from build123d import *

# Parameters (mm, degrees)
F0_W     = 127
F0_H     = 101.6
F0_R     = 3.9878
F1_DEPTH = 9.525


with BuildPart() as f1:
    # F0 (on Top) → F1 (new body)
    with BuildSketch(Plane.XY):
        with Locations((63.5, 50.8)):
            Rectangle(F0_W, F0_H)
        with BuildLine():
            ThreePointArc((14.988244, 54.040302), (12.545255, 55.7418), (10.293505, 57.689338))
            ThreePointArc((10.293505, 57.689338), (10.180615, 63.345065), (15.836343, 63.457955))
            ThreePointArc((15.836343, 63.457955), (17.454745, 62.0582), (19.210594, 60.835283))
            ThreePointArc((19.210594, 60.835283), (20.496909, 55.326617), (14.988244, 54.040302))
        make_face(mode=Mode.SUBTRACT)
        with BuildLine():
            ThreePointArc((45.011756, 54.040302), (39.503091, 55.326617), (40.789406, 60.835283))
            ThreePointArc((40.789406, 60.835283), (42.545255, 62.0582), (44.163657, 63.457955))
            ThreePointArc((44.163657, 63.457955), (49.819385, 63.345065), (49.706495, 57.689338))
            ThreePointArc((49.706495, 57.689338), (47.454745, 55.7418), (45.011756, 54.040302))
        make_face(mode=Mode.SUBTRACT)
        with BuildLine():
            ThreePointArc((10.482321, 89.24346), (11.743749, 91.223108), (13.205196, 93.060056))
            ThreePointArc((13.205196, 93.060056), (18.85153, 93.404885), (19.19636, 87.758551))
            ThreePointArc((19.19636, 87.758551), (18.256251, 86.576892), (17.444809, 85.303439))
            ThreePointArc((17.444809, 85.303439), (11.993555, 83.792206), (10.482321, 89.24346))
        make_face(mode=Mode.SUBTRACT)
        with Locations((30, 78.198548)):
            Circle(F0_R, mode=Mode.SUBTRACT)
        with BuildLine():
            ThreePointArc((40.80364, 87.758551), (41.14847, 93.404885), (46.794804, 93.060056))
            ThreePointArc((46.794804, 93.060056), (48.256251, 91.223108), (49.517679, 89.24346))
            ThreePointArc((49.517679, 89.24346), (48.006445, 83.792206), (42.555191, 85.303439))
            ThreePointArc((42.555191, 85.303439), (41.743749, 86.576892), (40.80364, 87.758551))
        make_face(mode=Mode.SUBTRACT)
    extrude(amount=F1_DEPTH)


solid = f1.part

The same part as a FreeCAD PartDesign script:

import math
import FreeCAD as App
import Part
import Sketcher
Q = App.Units.Quantity

doc = App.newDocument("Part")
body = doc.addObject("PartDesign::Body", "Body")

sketch1 = doc.addObject("Sketcher::SketchObject", "Sketch")
body.addObject(sketch1)
sketch1.AttachmentSupport = (doc.XY_Plane, [""])
sketch1.MapMode = "FlatFace"
sketch1.addGeometry([
    Part.LineSegment(App.Vector(0, 101.6, 0), App.Vector(0, 0, 0)),
    Part.LineSegment(App.Vector(0, 0, 0), App.Vector(127, 0, 0)),
    Part.LineSegment(App.Vector(127, 0, 0), App.Vector(127, 101.6, 0)),
    Part.LineSegment(App.Vector(127, 101.6, 0), App.Vector(0, 101.6, 0)),
    Part.ArcOfCircle(Part.Circle(App.Vector(17.1, 57.4, 0), App.Vector(0, 0, 1), 4), math.radians(-122), math.radians(58)),
    Part.ArcOfCircle(Part.Circle(App.Vector(30, 78.2, 0), App.Vector(0, 0, 1), 28.4), math.radians(-133.86), math.radians(-121.86)),
    Part.ArcOfCircle(Part.Circle(App.Vector(13.1, 60.6, 0), App.Vector(0, 0, 1), 4), math.radians(46), math.radians(226)),
    Part.ArcOfCircle(Part.Circle(App.Vector(30, 78.2, 0), App.Vector(0, 0, 1), 20.4), math.radians(-133.86), math.radians(-121.86)),
    Part.ArcOfCircle(Part.Circle(App.Vector(30, 78.2, 0), App.Vector(0, 0, 1), 28.4), math.radians(-58.14), math.radians(-46.14)),
    Part.ArcOfCircle(Part.Circle(App.Vector(42.9, 57.4, 0), App.Vector(0, 0, 1), 4), math.radians(122), math.radians(302)),
    Part.ArcOfCircle(Part.Circle(App.Vector(30, 78.2, 0), App.Vector(0, 0, 1), 20.4), math.radians(-58.14), math.radians(-46.14)),
    Part.ArcOfCircle(Part.Circle(App.Vector(46.9, 60.6, 0), App.Vector(0, 0, 1), 4), math.radians(-46), math.radians(134)),
    Part.ArcOfCircle(Part.Circle(App.Vector(14, 87.3, 0), App.Vector(0, 0, 1), 4), math.radians(150), math.radians(330)),
    Part.ArcOfCircle(Part.Circle(App.Vector(30, 78.2, 0), App.Vector(0, 0, 1), 22.4), math.radians(138.49), math.radians(150.49)),
    Part.ArcOfCircle(Part.Circle(App.Vector(16.2, 90.4, 0), App.Vector(0, 0, 1), 4), math.radians(-42), math.radians(138)),
    Part.ArcOfCircle(Part.Circle(App.Vector(30, 78.2, 0), App.Vector(0, 0, 1), 14.4), math.radians(138.49), math.radians(150.49)),
    Part.Circle(App.Vector(30, 78.2, 0), App.Vector(0, 0, 1), 4),
    Part.ArcOfCircle(Part.Circle(App.Vector(30, 78.2, 0), App.Vector(0, 0, 1), 14.4), math.radians(29.51), math.radians(41.51)),
    Part.ArcOfCircle(Part.Circle(App.Vector(43.8, 90.4, 0), App.Vector(0, 0, 1), 4), math.radians(42), math.radians(222)),
    Part.ArcOfCircle(Part.Circle(App.Vector(30, 78.2, 0), App.Vector(0, 0, 1), 22.4), math.radians(29.51), math.radians(41.51)),
    Part.ArcOfCircle(Part.Circle(App.Vector(46, 87.3, 0), App.Vector(0, 0, 1), 4), math.radians(-150), math.radians(30)),
], False)
sketch1.addConstraint([
    Sketcher.Constraint("Coincident", 0, 2, 1, 1),
    Sketcher.Constraint("Coincident", 1, 2, 2, 1),
    Sketcher.Constraint("Coincident", 2, 2, 3, 1),
    Sketcher.Constraint("Coincident", 3, 2, 0, 1),
    Sketcher.Constraint("Tangent", 4, 1, 5, 2),
    Sketcher.Constraint("Tangent", 5, 1, 6, 2),
    Sketcher.Constraint("Tangent", 6, 1, 7, 1),
    Sketcher.Constraint("Tangent", 7, 2, 4, 2),
    Sketcher.Constraint("Tangent", 8, 1, 9, 2),
    Sketcher.Constraint("Tangent", 9, 1, 10, 1),
    Sketcher.Constraint("Tangent", 10, 2, 11, 2),
    Sketcher.Constraint("Tangent", 11, 1, 8, 2),
    Sketcher.Constraint("Tangent", 12, 1, 13, 2),
    Sketcher.Constraint("Tangent", 13, 1, 14, 2),
    Sketcher.Constraint("Tangent", 14, 1, 15, 1),
    Sketcher.Constraint("Tangent", 15, 2, 12, 2),
    Sketcher.Constraint("Tangent", 17, 2, 18, 2),
    Sketcher.Constraint("Tangent", 18, 1, 19, 2),
    Sketcher.Constraint("Tangent", 19, 1, 20, 2),
    Sketcher.Constraint("Tangent", 20, 1, 17, 1),
    Sketcher.Constraint("Vertical", 0),
    Sketcher.Constraint("Horizontal", 1),
    Sketcher.Constraint("Vertical", 2),
    Sketcher.Constraint("Horizontal", 3),
    Sketcher.Constraint("Coincident", 0, 2, -1, 1),
    Sketcher.Constraint("Coincident", 7, 3, 5, 3),
    Sketcher.Constraint("Coincident", 8, 3, 5, 3),
    Sketcher.Constraint("Coincident", 10, 3, 5, 3),
    Sketcher.Constraint("Coincident", 16, 3, 5, 3),
    Sketcher.Constraint("Equal", 5, 8),
    Sketcher.Constraint("Equal", 6, 9),
    Sketcher.Constraint("Equal", 11, 12),
    Sketcher.Constraint("Equal", 12, 14),
    Sketcher.Constraint("Equal", 15, 17),
    Sketcher.Constraint("Equal", 14, 18),
    Sketcher.Constraint("Equal", 13, 19),
    Sketcher.Constraint("Equal", 18, 20),
    Sketcher.Constraint("Horizontal", 4, 3, 9, 3),
    Sketcher.Constraint("Horizontal", 6, 3, 11, 3),
    Sketcher.Constraint("Horizontal", 15, 3, 17, 3),
    Sketcher.Constraint("Horizontal", 14, 3, 18, 3),
    Sketcher.Constraint("Horizontal", 12, 3, 20, 3),
    Sketcher.Constraint("DistanceX", 1, 1, 1, 2, Q("5 in")),
    Sketcher.Constraint("DistanceY", 0, 2, 0, 1, Q("4 in")),
    Sketcher.Constraint("Diameter", 16, Q("0.314 in")),
    Sketcher.Constraint("Radius", 4, Q("4 mm")),
    Sketcher.Constraint("Radius", 5, Q("28.442463 mm")),
    Sketcher.Constraint("Radius", 13, Q("22.426115 mm")),
    Sketcher.Constraint("Radius", 15, Q("14.426143 mm")),
    Sketcher.Constraint("DistanceX", 12, 1, 13, 1, Q("0.1071998 in")),
    Sketcher.Constraint("DistanceX", -1, 1, 7, 3, Q("30.000002 mm")),
    Sketcher.Constraint("DistanceY", -1, 1, 8, 1, Q("54.040302 mm")),
    Sketcher.Constraint("DistanceY", 6, 3, 5, 3, Q("17.624901 mm")),
    Sketcher.Constraint("DistanceY", 10, 3, 12, 3, Q("9.074898 mm")),
    Sketcher.Constraint("DistanceX", 15, 3, 20, 3, Q("16.036398 mm")),
    Sketcher.Constraint("DistanceY", 5, 1, 19, 3, Q("20.509199 mm")),
    Sketcher.Constraint("DistanceX", 4, 1, 6, 1, Q("0.848099 mm")),
    Sketcher.Constraint("DistanceX", -1, 1, 12, 1, Q("10.482321 mm")),
])
pad1 = doc.addObject("PartDesign::Pad", "Pad")
body.addObject(pad1)
pad1.Profile = sketch1
pad1.Length = Q("0.375 in")

doc.recompute()
